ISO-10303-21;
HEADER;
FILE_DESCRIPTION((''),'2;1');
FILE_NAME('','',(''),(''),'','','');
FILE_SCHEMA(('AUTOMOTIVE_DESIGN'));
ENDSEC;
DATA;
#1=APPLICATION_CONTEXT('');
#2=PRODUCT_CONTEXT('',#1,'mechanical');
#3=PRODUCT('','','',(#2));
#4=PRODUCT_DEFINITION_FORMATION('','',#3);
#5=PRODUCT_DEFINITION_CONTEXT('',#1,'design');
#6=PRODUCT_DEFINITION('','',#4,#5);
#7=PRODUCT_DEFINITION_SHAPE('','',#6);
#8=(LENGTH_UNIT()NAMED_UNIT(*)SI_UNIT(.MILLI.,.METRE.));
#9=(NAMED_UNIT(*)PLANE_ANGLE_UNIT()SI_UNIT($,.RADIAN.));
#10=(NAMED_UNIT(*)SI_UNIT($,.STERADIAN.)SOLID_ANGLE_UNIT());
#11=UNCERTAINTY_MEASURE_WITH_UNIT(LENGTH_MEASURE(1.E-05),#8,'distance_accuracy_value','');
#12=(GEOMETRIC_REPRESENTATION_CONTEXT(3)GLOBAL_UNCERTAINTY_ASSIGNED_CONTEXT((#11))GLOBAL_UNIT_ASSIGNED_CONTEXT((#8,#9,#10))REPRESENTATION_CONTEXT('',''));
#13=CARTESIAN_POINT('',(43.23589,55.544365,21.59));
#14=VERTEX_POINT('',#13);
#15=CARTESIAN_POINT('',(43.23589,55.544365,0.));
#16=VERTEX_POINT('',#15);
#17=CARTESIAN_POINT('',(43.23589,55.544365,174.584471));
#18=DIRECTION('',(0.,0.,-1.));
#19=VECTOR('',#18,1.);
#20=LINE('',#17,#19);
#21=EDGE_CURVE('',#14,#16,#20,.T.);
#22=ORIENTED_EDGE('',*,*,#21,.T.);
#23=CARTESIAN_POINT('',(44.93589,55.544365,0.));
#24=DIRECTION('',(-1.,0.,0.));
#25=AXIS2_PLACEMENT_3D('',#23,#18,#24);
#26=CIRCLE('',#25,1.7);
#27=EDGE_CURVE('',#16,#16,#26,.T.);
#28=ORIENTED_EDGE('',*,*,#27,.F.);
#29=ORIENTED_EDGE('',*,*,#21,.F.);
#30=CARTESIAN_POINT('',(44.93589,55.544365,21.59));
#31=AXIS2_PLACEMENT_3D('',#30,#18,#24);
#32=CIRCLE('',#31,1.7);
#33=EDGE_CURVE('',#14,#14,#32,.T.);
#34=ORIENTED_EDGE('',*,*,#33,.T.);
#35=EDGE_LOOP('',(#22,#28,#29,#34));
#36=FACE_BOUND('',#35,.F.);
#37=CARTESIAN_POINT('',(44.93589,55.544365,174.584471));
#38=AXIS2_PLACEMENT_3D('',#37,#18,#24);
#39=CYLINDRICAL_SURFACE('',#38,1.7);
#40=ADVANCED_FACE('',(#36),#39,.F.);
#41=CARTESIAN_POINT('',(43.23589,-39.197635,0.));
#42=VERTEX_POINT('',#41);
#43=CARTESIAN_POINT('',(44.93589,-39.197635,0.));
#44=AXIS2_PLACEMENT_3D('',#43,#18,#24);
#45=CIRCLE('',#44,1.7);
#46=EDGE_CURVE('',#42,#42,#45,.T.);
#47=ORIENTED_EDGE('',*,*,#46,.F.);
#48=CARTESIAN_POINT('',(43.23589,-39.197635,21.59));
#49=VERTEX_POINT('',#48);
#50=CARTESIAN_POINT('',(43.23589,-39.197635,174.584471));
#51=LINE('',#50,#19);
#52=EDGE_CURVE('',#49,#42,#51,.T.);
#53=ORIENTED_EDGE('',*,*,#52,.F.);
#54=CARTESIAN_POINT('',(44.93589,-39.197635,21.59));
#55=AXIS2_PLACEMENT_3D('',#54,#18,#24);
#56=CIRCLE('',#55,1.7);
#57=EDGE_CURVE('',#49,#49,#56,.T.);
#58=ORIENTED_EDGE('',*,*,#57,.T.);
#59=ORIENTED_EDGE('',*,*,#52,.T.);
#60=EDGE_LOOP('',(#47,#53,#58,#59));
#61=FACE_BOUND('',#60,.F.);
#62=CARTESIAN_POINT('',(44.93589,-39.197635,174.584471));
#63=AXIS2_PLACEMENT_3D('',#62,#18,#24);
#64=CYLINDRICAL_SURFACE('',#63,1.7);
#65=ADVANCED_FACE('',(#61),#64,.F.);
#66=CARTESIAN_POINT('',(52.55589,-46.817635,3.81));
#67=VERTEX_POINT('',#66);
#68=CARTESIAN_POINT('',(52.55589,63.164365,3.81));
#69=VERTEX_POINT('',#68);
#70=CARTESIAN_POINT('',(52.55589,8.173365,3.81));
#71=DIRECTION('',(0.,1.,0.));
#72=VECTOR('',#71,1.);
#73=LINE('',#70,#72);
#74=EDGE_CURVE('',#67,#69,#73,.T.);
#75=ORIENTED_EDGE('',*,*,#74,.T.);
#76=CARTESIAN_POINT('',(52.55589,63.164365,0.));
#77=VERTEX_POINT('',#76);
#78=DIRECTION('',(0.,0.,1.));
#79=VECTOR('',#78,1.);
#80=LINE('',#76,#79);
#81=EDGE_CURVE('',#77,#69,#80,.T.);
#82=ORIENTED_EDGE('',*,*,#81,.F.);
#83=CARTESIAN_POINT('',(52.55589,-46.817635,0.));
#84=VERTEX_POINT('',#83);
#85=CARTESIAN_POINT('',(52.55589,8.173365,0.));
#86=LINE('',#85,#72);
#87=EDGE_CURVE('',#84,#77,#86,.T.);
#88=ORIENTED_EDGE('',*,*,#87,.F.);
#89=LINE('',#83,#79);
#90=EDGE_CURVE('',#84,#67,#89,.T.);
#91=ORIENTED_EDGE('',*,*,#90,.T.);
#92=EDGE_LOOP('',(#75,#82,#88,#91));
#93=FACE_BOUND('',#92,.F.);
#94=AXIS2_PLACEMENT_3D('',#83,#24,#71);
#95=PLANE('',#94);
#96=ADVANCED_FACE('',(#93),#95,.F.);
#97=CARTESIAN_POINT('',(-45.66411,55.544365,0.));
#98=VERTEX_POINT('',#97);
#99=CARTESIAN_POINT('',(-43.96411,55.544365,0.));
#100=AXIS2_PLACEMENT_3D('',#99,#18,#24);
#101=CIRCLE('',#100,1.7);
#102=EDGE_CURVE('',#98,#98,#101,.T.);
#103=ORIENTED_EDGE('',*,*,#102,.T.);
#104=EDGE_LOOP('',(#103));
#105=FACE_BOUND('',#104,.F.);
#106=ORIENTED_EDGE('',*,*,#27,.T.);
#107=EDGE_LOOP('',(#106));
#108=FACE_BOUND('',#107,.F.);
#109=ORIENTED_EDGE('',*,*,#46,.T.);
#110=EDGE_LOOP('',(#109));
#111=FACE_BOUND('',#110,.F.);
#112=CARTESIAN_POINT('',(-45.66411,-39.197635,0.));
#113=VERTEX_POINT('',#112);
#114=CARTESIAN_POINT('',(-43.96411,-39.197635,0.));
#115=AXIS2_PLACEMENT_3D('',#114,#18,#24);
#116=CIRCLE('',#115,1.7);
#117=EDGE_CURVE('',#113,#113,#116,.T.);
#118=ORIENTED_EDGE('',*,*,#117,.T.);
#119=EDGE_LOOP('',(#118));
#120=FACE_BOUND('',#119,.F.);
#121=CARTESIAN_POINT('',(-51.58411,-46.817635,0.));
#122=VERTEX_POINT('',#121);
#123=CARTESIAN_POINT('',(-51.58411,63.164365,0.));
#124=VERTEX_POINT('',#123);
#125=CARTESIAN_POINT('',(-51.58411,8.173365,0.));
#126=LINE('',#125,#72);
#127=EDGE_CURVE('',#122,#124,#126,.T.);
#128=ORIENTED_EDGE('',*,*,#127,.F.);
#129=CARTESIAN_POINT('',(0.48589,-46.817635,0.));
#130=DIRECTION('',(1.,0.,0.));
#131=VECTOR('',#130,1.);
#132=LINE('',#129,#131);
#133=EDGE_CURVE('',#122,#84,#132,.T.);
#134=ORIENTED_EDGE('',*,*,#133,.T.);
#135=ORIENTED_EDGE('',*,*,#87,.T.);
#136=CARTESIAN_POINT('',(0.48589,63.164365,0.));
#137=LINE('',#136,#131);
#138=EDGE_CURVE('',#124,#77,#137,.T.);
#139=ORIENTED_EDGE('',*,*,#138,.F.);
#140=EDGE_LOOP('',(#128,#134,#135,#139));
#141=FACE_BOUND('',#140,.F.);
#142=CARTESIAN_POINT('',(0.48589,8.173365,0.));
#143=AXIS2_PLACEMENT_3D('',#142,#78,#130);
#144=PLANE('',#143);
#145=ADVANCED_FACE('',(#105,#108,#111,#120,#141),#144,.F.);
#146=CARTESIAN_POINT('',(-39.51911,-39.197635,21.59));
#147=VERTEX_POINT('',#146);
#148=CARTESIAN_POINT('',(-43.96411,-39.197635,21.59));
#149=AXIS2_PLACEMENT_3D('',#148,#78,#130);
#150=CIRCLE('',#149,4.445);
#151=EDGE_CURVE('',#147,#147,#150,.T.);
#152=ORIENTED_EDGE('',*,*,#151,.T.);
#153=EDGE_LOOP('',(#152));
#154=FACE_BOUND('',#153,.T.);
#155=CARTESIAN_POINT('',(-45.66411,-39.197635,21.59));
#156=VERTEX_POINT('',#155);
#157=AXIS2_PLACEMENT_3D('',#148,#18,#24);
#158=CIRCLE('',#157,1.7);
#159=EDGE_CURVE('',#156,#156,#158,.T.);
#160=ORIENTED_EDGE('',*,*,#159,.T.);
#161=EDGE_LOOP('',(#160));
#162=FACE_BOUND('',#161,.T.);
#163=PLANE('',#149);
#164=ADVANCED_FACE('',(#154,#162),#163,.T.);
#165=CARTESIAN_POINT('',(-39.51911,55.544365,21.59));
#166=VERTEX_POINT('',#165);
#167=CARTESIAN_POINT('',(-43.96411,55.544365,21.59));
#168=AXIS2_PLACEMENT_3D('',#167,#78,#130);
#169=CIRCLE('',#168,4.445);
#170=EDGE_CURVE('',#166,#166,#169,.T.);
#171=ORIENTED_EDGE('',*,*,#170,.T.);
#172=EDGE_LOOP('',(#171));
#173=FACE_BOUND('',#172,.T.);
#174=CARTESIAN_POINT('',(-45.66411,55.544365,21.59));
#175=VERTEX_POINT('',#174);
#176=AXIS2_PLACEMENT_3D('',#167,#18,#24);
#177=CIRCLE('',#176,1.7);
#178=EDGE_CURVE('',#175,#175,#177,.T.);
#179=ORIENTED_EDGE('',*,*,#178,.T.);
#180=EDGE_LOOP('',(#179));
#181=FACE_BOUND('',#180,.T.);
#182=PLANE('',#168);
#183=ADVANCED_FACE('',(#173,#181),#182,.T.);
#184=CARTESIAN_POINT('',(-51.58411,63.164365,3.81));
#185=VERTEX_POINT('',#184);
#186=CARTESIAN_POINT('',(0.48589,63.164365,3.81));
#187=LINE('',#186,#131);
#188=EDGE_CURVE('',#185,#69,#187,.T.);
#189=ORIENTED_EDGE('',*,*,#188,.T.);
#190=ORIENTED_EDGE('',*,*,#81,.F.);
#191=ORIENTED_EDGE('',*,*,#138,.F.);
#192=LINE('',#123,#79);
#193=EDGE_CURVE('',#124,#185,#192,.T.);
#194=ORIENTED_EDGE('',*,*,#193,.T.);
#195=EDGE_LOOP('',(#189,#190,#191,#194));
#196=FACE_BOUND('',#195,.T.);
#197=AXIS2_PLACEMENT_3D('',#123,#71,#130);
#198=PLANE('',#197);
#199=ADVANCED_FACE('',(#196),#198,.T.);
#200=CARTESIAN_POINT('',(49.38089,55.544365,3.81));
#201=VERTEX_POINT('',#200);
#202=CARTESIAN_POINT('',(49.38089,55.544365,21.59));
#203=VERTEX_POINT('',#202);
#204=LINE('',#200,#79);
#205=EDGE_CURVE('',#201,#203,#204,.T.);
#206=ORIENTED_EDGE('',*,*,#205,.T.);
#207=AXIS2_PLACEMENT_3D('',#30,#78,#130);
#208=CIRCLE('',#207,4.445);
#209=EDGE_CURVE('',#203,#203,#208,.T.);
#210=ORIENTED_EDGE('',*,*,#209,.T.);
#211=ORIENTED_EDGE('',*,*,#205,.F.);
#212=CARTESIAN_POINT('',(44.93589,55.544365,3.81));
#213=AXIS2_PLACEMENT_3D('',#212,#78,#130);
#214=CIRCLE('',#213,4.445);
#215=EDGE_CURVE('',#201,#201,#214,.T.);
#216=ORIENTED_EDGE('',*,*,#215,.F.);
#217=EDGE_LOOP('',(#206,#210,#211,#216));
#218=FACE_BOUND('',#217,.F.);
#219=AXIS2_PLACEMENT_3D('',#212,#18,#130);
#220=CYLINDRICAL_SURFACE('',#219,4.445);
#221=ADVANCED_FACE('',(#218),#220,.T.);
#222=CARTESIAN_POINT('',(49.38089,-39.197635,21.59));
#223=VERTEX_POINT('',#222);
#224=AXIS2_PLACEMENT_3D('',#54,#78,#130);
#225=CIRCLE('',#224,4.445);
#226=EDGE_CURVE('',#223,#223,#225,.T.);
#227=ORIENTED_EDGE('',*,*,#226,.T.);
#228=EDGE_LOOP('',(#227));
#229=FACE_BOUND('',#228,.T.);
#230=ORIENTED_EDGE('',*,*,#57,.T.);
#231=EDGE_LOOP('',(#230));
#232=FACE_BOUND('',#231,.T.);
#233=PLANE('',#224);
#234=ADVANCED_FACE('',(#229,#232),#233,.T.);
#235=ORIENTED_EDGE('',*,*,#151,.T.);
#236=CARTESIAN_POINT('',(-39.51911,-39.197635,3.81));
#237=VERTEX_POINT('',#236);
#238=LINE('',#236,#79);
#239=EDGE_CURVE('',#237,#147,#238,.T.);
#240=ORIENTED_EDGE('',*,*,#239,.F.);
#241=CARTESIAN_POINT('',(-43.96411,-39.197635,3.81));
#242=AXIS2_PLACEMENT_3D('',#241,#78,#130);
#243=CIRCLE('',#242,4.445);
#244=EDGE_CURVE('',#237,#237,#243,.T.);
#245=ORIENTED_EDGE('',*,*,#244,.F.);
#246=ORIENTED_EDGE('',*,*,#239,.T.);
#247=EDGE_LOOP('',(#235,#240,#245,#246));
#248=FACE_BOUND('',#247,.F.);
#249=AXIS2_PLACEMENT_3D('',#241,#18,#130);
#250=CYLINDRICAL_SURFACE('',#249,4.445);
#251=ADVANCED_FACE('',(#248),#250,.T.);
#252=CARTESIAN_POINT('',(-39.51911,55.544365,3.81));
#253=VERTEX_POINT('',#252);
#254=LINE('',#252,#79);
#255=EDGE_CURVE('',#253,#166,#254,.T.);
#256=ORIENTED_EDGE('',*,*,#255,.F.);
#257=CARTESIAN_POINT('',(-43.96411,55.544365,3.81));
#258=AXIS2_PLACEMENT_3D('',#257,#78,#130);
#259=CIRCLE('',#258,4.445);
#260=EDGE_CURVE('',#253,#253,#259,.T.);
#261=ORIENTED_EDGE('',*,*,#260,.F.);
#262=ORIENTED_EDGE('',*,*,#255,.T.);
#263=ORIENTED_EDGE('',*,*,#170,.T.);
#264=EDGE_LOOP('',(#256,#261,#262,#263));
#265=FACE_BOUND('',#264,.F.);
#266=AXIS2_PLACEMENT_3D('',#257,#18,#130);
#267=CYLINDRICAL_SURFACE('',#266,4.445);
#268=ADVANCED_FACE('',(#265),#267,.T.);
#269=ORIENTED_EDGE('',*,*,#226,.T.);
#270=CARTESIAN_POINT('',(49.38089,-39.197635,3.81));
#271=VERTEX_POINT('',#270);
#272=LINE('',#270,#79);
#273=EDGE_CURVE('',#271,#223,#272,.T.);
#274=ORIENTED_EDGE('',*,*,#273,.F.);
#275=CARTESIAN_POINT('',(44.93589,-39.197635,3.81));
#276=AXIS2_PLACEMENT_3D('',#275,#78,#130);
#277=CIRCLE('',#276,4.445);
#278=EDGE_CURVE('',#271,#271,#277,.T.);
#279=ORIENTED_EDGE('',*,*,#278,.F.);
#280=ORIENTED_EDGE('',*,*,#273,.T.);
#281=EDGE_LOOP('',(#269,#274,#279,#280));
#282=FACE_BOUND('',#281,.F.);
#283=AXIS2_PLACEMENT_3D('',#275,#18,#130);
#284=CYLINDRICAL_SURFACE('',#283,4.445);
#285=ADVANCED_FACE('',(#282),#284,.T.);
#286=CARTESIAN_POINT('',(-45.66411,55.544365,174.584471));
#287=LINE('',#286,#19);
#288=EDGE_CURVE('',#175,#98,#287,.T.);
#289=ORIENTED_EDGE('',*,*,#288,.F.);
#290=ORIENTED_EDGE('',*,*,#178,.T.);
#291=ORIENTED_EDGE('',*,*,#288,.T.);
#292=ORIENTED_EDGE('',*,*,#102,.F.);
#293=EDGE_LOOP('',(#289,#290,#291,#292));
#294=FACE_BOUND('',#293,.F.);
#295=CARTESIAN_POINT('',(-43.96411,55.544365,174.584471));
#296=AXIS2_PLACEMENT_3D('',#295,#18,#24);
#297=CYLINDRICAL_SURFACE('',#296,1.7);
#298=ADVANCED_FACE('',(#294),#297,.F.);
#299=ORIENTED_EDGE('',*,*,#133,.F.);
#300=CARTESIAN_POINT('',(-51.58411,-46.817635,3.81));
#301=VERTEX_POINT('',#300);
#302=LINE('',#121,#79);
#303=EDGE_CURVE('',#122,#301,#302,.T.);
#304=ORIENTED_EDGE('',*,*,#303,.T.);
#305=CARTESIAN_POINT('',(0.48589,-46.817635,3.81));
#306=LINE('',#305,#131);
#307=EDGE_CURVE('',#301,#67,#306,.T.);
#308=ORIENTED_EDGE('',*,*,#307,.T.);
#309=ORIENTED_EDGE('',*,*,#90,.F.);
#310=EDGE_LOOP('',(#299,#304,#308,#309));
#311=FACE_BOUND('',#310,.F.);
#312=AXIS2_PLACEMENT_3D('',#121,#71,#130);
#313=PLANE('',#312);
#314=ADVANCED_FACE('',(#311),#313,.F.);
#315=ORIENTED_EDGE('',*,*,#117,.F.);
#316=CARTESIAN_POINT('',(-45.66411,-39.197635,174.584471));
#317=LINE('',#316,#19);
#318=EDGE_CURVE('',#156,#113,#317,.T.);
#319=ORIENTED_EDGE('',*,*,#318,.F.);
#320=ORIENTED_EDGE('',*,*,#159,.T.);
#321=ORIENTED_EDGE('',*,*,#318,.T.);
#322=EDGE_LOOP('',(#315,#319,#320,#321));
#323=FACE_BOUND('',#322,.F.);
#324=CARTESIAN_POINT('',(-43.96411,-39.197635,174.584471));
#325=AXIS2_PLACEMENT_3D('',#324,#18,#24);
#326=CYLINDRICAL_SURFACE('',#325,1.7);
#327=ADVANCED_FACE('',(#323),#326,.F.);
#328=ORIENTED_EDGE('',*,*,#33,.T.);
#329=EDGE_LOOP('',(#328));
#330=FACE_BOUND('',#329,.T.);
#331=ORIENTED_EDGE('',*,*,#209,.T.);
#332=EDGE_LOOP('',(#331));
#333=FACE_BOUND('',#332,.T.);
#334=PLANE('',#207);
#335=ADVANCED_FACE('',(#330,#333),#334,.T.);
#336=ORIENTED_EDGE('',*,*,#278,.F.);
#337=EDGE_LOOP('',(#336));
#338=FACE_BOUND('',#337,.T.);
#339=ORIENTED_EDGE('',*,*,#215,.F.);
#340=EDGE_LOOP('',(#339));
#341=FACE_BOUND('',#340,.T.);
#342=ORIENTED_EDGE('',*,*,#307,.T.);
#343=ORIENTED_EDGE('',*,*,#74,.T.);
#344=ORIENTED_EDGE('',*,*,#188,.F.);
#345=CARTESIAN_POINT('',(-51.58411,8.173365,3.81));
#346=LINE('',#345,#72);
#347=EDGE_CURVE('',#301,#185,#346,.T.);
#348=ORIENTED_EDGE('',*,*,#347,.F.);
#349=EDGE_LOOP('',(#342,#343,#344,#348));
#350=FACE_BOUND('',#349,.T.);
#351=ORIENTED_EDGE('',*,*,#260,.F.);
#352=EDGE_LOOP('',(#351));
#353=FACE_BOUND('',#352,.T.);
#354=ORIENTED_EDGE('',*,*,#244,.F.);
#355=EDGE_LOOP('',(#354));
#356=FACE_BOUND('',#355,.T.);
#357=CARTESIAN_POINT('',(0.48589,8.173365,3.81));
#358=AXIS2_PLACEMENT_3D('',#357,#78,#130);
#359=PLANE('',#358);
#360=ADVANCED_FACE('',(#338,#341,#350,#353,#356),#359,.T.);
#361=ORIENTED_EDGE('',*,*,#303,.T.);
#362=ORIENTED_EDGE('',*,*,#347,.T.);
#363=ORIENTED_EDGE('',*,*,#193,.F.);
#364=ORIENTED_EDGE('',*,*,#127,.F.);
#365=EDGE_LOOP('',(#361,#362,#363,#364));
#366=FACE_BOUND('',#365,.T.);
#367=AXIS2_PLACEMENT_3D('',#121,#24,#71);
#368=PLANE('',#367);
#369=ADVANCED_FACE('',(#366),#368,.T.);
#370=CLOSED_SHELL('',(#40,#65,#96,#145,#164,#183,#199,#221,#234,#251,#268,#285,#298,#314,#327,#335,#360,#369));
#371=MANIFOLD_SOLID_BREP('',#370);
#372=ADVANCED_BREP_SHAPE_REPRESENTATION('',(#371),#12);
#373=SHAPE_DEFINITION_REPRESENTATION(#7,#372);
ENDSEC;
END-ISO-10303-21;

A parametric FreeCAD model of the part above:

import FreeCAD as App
import Part
import Sketcher

V = App.Vector
Q = App.Units.Quantity

doc = App.newDocument("Part")
body = doc.addObject("PartDesign::Body", "Body")

sketch1 = body.newObject("Sketcher::SketchObject", "Sketch")
sketch1.AttachmentSupport = (doc.getObject("XY_Plane"), [""])
sketch1.MapMode = "FlatFace"
sketch1.addGeometry(Part.LineSegment(V(-52, 63, 0), V(-52, -47, 0)), False)
sketch1.addGeometry(Part.LineSegment(V(-52, -47, 0), V(53, -47, 0)), False)
sketch1.addGeometry(Part.LineSegment(V(53, -47, 0), V(53, 63, 0)), False)
sketch1.addGeometry(Part.LineSegment(V(53, 63, 0), V(-52, 63, 0)), False)
sketch1.addConstraint(Sketcher.Constraint("Coincident", 0, 2, 1, 1))
sketch1.addConstraint(Sketcher.Constraint("Coincident", 1, 2, 2, 1))
sketch1.addConstraint(Sketcher.Constraint("Coincident", 2, 2, 3, 1))
sketch1.addConstraint(Sketcher.Constraint("Coincident", 3, 2, 0, 1))
sketch1.addConstraint(Sketcher.Constraint("Vertical", 0))
sketch1.addConstraint(Sketcher.Constraint("Horizontal", 1))
sketch1.addConstraint(Sketcher.Constraint("Vertical", 2))
sketch1.addConstraint(Sketcher.Constraint("Horizontal", 3))
sketch1.addConstraint(Sketcher.Constraint("DistanceX", 1, 1, 1, 2, Q("4.1 in")))
sketch1.addConstraint(Sketcher.Constraint("DistanceY", 0, 2, 0, 1, Q("4.33 in")))
sketch1.addConstraint(Sketcher.Constraint("DistanceX", 0, 2, -1, 1, 51.58411))
sketch1.addConstraint(Sketcher.Constraint("DistanceY", 0, 2, -1, 1, 46.817635))
pad1 = body.newObject("PartDesign::Pad", "Pad")
pad1.Profile = sketch1
pad1.Length = Q("0.15 in")

sketch2 = body.newObject("Sketcher::SketchObject", "Sketch001")
sketch2.AttachmentSupport = (doc.getObject("XY_Plane"), [""])
sketch2.MapMode = "FlatFace"
sketch2.AttachmentOffset = App.Placement(V(0, 0, 0.15 * 25.4), App.Rotation())
sketch2.addGeometry(Part.Circle(V(-44, 55.5, 0), V(0, 0, 1), 4.4), False)
sketch2.addGeometry(Part.Circle(V(44.9, 55.5, 0), V(0, 0, 1), 4.4), False)
sketch2.addGeometry(Part.Circle(V(-44, -39.2, 0), V(0, 0, 1), 4.4), False)
sketch2.addGeometry(Part.Circle(V(44.9, -39.2, 0), V(0, 0, 1), 4.4), False)
sketch2.addConstraint(Sketcher.Constraint("Equal", 0, 1))
sketch2.addConstraint(Sketcher.Constraint("Equal", 1, 2))
sketch2.addConstraint(Sketcher.Constraint("Equal", 2, 3))
sketch2.addConstraint(Sketcher.Constraint("Horizontal", 0, 3, 1, 3))
sketch2.addConstraint(Sketcher.Constraint("Horizontal", 2, 3, 3, 3))
sketch2.addConstraint(Sketcher.Constraint("Vertical", 0, 3, 2, 3))
sketch2.addConstraint(Sketcher.Constraint("Vertical", 1, 3, 3, 3))
sketch2.addConstraint(Sketcher.Constraint("Diameter", 0, Q("0.35 in")))
sketch2.addConstraint(Sketcher.Constraint("DistanceX", 0, 3, 1, 3, Q("3.5 in")))
sketch2.addConstraint(Sketcher.Constraint("DistanceY", 2, 3, 0, 3, Q("3.73 in")))
sketch2.addConstraint(Sketcher.Constraint("DistanceX", 0, 3, -1, 1, 43.96411))
sketch2.addConstraint(Sketcher.Constraint("DistanceY", -1, 1, 0, 3, 55.544365))
pad2 = body.newObject("PartDesign::Pad", "Pad001")
pad2.Profile = sketch2
pad2.Length = Q("0.7 in")

sketch3 = body.newObject("Sketcher::SketchObject", "Sketch002")
sketch3.AttachmentSupport = (doc.getObject("XY_Plane"), [""])
sketch3.MapMode = "FlatFace"
sketch3.AttachmentOffset = App.Placement(V(0, 0, 0.85 * 25.4), App.Rotation())
sketch3.addGeometry(Part.Circle(V(-44, 55.5, 0), V(0, 0, 1), 1.7), False)
sketch3.addGeometry(Part.Circle(V(44.9, 55.5, 0), V(0, 0, 1), 1.7), False)
sketch3.addGeometry(Part.Circle(V(-44, -39.2, 0), V(0, 0, 1), 1.7), False)
sketch3.addGeometry(Part.Circle(V(44.9, -39.2, 0), V(0, 0, 1), 1.7), False)
sketch3.addConstraint(Sketcher.Constraint("Equal", 0, 1))
sketch3.addConstraint(Sketcher.Constraint("Equal", 1, 2))
sketch3.addConstraint(Sketcher.Constraint("Equal", 2, 3))
sketch3.addConstraint(Sketcher.Constraint("Horizontal", 0, 3, 1, 3))
sketch3.addConstraint(Sketcher.Constraint("Horizontal", 2, 3, 3, 3))
sketch3.addConstraint(Sketcher.Constraint("Vertical", 0, 3, 2, 3))
sketch3.addConstraint(Sketcher.Constraint("Vertical", 1, 3, 3, 3))
sketch3.addConstraint(Sketcher.Constraint("DistanceX", 0, 3, 1, 3, Q("3.5 in")))
sketch3.addConstraint(Sketcher.Constraint("Diameter", 0, 3.4))
sketch3.addConstraint(Sketcher.Constraint("DistanceY", 2, 3, 0, 3, Q("3.73 in")))
sketch3.addConstraint(Sketcher.Constraint("DistanceX", 0, 3, -1, 1, 43.96411))
sketch3.addConstraint(Sketcher.Constraint("DistanceY", -1, 1, 0, 3, 55.544365))
doc.recompute()
hole = body.newObject("PartDesign::Hole", "Hole")
hole.Profile = sketch3
hole.ThreadType = "None"
hole.Diameter = 3.4
hole.DepthType = "ThroughAll"

doc.recompute()
